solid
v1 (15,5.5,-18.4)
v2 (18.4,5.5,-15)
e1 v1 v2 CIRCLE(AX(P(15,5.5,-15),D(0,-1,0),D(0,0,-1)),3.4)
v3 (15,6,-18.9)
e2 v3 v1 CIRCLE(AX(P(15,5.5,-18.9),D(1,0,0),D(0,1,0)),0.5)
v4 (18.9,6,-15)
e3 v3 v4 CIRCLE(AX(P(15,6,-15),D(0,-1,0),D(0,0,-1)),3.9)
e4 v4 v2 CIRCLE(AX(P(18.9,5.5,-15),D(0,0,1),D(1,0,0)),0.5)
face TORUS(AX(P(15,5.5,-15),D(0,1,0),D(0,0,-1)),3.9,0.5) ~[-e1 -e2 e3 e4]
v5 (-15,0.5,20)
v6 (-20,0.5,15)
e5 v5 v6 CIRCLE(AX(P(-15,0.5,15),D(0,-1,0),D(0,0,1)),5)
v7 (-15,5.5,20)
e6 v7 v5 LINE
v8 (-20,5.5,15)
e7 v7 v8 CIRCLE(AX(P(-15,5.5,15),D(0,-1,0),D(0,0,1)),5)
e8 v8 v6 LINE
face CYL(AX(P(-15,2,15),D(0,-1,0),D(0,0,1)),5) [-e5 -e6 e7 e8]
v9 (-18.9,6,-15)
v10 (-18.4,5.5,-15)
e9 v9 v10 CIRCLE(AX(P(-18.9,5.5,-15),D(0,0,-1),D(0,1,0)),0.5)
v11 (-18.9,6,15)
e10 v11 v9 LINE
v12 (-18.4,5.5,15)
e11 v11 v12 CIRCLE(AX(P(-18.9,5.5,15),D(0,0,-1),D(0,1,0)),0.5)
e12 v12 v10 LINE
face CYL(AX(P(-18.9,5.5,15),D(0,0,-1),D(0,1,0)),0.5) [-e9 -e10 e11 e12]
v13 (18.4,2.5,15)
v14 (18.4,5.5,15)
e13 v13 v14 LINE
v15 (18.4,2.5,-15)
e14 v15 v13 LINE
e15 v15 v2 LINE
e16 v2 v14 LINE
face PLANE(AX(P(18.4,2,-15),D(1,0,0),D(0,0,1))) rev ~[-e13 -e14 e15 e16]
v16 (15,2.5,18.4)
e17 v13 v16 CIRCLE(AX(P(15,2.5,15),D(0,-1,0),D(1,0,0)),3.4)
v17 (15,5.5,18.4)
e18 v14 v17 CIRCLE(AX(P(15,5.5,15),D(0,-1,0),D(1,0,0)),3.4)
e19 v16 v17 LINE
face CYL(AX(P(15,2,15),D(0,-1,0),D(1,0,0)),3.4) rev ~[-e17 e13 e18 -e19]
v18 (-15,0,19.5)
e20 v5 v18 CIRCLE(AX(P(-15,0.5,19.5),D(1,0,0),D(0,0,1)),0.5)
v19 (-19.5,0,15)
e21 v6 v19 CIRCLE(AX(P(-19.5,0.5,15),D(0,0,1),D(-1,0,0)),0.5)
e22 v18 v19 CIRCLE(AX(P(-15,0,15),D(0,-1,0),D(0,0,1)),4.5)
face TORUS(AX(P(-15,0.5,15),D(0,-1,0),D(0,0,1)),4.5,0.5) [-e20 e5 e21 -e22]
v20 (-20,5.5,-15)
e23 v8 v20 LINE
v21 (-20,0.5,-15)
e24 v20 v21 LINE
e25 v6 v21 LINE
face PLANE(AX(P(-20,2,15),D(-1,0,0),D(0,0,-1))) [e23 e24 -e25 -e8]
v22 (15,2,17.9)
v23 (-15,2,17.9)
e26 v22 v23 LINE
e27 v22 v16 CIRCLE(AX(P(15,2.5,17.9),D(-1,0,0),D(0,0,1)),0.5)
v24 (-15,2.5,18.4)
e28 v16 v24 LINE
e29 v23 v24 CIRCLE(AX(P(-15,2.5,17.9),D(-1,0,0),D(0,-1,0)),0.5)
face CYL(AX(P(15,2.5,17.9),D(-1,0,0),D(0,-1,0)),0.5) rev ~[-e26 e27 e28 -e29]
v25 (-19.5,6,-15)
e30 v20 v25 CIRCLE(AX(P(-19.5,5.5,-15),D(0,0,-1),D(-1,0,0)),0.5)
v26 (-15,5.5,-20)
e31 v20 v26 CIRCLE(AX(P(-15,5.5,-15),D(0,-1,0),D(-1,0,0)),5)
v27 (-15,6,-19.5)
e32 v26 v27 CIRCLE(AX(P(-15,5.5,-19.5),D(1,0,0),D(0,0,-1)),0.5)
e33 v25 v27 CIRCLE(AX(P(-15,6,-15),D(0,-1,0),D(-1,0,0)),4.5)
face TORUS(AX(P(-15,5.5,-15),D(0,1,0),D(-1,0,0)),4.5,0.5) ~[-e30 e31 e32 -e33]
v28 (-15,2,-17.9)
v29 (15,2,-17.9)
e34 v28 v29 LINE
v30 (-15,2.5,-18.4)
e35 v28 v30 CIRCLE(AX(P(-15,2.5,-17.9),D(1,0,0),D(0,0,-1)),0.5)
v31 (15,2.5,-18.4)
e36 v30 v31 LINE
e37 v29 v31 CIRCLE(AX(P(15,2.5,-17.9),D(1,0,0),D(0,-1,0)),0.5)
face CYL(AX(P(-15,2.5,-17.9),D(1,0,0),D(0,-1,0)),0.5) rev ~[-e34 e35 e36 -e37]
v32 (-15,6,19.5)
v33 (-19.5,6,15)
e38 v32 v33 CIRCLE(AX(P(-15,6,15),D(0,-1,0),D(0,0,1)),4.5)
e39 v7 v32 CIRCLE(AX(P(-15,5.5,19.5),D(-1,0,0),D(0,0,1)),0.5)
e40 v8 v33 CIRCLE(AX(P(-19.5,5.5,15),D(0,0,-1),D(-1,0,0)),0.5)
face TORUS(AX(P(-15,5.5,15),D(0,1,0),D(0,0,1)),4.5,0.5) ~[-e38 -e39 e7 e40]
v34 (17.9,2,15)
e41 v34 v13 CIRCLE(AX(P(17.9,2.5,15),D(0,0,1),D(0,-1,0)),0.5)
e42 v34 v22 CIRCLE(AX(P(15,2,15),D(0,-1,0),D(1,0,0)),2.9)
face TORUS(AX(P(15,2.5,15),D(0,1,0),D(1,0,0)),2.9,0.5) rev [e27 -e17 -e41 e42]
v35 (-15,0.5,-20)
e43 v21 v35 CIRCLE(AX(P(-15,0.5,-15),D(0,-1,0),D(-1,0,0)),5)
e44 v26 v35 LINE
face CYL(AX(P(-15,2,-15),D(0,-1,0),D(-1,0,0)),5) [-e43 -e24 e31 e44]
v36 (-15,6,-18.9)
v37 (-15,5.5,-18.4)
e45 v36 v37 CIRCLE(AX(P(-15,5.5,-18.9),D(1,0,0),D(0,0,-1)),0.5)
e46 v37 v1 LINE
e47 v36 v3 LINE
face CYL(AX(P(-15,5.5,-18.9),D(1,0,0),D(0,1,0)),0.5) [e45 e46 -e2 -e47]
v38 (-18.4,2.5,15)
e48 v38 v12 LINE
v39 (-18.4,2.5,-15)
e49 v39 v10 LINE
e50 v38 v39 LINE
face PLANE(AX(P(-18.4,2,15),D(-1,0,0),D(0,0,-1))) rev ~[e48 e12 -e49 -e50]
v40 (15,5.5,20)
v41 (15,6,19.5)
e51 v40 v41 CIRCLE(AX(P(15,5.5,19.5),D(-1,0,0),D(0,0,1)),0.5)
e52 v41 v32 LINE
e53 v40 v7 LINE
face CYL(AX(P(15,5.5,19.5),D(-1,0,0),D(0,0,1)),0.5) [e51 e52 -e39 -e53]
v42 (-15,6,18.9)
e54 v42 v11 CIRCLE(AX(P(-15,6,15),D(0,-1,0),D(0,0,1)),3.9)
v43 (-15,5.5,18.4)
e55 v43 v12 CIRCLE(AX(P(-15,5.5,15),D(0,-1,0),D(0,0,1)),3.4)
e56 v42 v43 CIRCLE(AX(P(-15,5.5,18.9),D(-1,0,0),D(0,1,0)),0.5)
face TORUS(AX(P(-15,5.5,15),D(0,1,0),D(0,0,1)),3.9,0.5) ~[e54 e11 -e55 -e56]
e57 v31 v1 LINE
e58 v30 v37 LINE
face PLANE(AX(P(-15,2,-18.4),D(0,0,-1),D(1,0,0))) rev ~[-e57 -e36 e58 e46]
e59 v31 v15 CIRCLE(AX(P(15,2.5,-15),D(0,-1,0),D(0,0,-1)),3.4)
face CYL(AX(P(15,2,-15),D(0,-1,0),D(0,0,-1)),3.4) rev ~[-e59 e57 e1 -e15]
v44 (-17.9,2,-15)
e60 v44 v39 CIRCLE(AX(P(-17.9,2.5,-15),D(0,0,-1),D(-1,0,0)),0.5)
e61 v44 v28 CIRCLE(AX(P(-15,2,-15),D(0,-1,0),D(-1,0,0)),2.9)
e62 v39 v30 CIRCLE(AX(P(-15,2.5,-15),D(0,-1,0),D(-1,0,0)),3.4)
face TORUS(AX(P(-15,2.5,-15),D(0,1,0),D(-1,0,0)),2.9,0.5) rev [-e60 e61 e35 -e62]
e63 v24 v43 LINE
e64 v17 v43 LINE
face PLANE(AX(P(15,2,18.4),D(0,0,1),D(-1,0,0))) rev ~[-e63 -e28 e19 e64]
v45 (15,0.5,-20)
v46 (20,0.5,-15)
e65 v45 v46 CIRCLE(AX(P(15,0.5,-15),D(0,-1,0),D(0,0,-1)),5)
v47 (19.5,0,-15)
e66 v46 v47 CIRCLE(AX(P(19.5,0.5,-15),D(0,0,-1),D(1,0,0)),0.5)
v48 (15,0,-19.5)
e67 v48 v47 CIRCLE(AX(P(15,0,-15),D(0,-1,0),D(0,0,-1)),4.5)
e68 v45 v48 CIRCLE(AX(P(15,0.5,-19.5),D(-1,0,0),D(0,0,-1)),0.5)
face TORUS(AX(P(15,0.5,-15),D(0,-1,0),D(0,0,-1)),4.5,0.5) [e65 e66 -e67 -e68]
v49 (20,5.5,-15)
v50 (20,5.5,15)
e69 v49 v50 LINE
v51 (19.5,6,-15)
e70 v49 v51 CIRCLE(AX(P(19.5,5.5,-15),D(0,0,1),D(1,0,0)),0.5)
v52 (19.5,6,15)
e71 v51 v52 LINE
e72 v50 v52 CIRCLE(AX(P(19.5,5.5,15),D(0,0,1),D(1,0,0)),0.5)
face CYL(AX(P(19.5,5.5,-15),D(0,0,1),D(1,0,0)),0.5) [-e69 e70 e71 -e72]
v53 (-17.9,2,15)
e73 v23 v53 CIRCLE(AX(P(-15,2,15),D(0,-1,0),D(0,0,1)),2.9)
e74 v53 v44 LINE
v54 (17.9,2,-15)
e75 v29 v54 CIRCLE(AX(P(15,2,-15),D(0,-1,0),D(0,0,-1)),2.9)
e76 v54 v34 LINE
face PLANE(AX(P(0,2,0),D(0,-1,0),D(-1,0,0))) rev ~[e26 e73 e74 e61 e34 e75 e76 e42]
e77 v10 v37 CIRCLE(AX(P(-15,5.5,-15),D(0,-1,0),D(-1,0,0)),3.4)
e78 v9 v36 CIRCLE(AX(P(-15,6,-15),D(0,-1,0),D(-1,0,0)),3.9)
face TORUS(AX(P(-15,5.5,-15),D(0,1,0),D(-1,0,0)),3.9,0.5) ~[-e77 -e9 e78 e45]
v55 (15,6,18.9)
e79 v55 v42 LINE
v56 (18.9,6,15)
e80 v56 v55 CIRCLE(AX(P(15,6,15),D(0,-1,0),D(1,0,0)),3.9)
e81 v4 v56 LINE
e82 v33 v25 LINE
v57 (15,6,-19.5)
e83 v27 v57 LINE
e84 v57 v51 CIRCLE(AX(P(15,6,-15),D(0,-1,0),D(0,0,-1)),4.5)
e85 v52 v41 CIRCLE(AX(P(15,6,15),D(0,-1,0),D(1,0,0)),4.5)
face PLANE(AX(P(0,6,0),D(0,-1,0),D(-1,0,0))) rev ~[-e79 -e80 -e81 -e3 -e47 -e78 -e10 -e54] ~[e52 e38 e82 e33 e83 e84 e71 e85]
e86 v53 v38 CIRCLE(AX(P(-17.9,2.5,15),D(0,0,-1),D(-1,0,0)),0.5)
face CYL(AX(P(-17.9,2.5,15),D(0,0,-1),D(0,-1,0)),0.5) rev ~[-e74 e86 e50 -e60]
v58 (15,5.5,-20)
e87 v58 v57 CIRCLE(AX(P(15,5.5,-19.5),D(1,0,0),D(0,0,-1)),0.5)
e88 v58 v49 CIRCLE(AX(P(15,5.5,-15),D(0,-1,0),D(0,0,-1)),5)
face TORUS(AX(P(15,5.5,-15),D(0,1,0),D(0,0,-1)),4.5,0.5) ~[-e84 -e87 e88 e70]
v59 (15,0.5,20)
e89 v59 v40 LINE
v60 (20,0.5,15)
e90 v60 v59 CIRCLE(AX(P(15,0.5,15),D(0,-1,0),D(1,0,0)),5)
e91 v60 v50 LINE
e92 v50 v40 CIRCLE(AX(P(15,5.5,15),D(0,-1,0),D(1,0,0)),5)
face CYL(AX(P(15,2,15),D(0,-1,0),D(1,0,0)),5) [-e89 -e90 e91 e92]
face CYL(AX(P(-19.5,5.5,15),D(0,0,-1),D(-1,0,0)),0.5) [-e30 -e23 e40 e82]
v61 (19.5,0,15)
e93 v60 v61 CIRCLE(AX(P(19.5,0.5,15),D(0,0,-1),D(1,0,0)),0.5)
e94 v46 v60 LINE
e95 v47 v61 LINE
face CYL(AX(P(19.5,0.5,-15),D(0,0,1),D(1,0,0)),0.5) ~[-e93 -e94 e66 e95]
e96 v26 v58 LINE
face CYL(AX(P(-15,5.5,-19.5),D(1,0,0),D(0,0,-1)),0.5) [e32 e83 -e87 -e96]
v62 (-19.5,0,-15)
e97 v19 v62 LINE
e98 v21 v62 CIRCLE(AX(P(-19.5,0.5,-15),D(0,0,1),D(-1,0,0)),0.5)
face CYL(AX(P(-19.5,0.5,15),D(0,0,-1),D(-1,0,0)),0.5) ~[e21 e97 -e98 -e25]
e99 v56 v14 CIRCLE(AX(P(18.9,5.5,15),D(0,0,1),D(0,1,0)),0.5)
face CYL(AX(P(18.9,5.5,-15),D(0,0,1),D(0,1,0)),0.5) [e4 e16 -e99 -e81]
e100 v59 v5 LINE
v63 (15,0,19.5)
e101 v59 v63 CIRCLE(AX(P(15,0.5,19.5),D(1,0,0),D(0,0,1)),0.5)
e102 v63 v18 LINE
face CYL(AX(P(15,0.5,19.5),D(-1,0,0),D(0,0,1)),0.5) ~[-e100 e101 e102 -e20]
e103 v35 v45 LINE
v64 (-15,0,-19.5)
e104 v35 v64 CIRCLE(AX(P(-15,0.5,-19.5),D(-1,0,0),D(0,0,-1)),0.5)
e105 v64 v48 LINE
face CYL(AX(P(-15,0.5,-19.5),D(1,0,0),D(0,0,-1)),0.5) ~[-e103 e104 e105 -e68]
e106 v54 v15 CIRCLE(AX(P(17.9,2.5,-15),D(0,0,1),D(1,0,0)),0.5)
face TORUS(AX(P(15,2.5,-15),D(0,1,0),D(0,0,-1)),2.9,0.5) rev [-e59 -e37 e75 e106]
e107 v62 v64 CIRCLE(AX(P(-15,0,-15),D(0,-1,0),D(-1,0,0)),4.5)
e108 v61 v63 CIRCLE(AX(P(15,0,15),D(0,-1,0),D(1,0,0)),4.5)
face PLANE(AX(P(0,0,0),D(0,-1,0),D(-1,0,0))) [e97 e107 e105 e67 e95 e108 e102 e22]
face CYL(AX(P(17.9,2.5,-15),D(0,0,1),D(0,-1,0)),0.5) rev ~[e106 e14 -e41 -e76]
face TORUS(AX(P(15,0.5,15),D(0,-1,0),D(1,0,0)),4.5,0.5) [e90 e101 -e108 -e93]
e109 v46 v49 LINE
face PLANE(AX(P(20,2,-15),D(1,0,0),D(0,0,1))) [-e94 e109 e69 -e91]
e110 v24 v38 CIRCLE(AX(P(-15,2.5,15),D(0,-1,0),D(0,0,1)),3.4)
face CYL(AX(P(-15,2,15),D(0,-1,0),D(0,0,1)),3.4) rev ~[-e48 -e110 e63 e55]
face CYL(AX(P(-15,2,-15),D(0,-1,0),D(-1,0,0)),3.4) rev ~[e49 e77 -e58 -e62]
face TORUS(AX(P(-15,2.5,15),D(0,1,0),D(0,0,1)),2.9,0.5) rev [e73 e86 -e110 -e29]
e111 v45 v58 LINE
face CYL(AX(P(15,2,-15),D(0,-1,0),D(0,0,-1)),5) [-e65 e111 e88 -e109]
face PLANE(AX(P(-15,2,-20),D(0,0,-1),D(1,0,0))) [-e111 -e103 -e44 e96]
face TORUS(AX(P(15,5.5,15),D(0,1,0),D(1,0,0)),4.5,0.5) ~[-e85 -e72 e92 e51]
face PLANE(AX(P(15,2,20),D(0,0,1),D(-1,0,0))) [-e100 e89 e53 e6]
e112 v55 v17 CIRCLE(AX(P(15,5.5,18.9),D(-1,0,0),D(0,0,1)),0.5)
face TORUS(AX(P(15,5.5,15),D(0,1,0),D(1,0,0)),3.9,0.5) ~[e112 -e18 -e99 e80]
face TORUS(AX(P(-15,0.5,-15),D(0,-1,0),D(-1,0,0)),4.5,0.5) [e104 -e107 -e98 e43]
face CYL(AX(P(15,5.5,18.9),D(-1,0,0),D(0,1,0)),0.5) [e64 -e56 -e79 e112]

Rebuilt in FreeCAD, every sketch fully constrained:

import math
import FreeCAD as App
import Part
import Sketcher
from FreeCAD import Vector


def edges_at(feature, points):
    """Names of the edges that pass closest to the given points."""
    edges = feature.Shape.Edges
    near = lambda p: min(range(len(edges)), key=lambda i: edges[i].distToShape(Part.Vertex(*p))[0])
    return sorted({f"Edge{near(p) + 1}" for p in points})

doc = App.newDocument("Part")
body = doc.addObject("PartDesign::Body", "Body")

# Sketch on XZ plane
sketch1 = body.newObject("Sketcher::SketchObject", "Sketch")
sketch1.AttachmentSupport = (doc.getObject("XZ_Plane"), [""])
sketch1.MapMode = "FlatFace"
sketch1.addGeometry([
    Part.LineSegment(Vector(15, -20, 0), Vector(-15, -20, 0)),  # 0
    Part.ArcOfCircle(Part.Circle(Vector(-15, -15, 0), Vector(0, 0, 1), 5), math.radians(180), math.radians(270)),  # 1
    Part.LineSegment(Vector(-20, -15, 0), Vector(-20, 15, 0)),  # 2
    Part.ArcOfCircle(Part.Circle(Vector(-15, 15, 0), Vector(0, 0, 1), 5), math.radians(90), math.radians(180)),  # 3
    Part.LineSegment(Vector(-15, 20, 0), Vector(15, 20, 0)),  # 4
    Part.ArcOfCircle(Part.Circle(Vector(15, 15, 0), Vector(0, 0, 1), 5), math.radians(0), math.radians(90)),  # 5
    Part.LineSegment(Vector(20, 15, 0), Vector(20, -15, 0)),  # 6
    Part.ArcOfCircle(Part.Circle(Vector(15, -15, 0), Vector(0, 0, 1), 5), math.radians(-90), math.radians(0)),  # 7
], False)
sketch1.addConstraint([
    Sketcher.Constraint("Tangent", 0, 2, 1, 2),
    Sketcher.Constraint("Tangent", 1, 1, 2, 1),
    Sketcher.Constraint("Tangent", 2, 2, 3, 2),
    Sketcher.Constraint("Tangent", 3, 1, 4, 1),
    Sketcher.Constraint("Tangent", 4, 2, 5, 2),
    Sketcher.Constraint("Tangent", 5, 1, 6, 1),
    Sketcher.Constraint("Tangent", 6, 2, 7, 2),
    Sketcher.Constraint("Tangent", 7, 1, 0, 1),
    Sketcher.Constraint("Horizontal", 0),
    Sketcher.Constraint("Vertical", 2),
    Sketcher.Constraint("Horizontal", 4),
    Sketcher.Constraint("Vertical", 6),
    Sketcher.Constraint("Equal", 1, 3),
    Sketcher.Constraint("Equal", 3, 5),
    Sketcher.Constraint("Equal", 5, 7),
    Sketcher.Constraint("Symmetric", 1, 3, 5, 3, -1, 1),
    Sketcher.Constraint("Equal", 4, 2),
    Sketcher.Constraint("Radius", 1, 5.0),
    Sketcher.Constraint("DistanceX", 0, 2, 0, 1, 30.0),
])
pad1 = body.newObject("PartDesign::Pad", "Pad")
pad1.Profile = sketch1
pad1.Length = 2
pad1.Reversed = True

# Sketch on XZ plane
sketch2 = body.newObject("Sketcher::SketchObject", "Sketch001")
sketch2.AttachmentSupport = (doc.getObject("XZ_Plane"), [""])
sketch2.MapMode = "FlatFace"
sketch2.AttachmentOffset = App.Placement(Vector(0, 0, -2), App.Rotation())
sketch2.addGeometry([
    Part.LineSegment(Vector(-15, 20, 0), Vector(15, 20, 0)),  # 0
    Part.ArcOfCircle(Part.Circle(Vector(15, 15, 0), Vector(0, 0, 1), 5), math.radians(0), math.radians(90)),  # 1
    Part.LineSegment(Vector(20, 15, 0), Vector(20, -15, 0)),  # 2
    Part.ArcOfCircle(Part.Circle(Vector(15, -15, 0), Vector(0, 0, 1), 5), math.radians(-90), math.radians(0)),  # 3
    Part.LineSegment(Vector(15, -20, 0), Vector(-15, -20, 0)),  # 4
    Part.ArcOfCircle(Part.Circle(Vector(-15, -15, 0), Vector(0, 0, 1), 5), math.radians(180), math.radians(270)),  # 5
    Part.LineSegment(Vector(-20, -15, 0), Vector(-20, 15, 0)),  # 6
    Part.ArcOfCircle(Part.Circle(Vector(-15, 15, 0), Vector(0, 0, 1), 5), math.radians(90), math.radians(180)),  # 7
    Part.LineSegment(Vector(15, 18.4, 0), Vector(-15, 18.4, 0)),  # 8
    Part.ArcOfCircle(Part.Circle(Vector(-15, 15, 0), Vector(0, 0, 1), 3.4), math.radians(90), math.radians(180)),  # 9
    Part.LineSegment(Vector(-18.4, 15, 0), Vector(-18.4, -15, 0)),  # 10
    Part.ArcOfCircle(Part.Circle(Vector(-15, -15, 0), Vector(0, 0, 1), 3.4), math.radians(180), math.radians(270)),  # 11
    Part.LineSegment(Vector(-15, -18.4, 0), Vector(15, -18.4, 0)),  # 12
    Part.ArcOfCircle(Part.Circle(Vector(15, -15, 0), Vector(0, 0, 1), 3.4), math.radians(-90), math.radians(0)),  # 13
    Part.LineSegment(Vector(18.4, -15, 0), Vector(18.4, 15, 0)),  # 14
    Part.ArcOfCircle(Part.Circle(Vector(15, 15, 0), Vector(0, 0, 1), 3.4), math.radians(0), math.radians(90)),  # 15
], False)
sketch2.addConstraint([
    Sketcher.Constraint("Tangent", 0, 2, 1, 2),
    Sketcher.Constraint("Tangent", 1, 1, 2, 1),
    Sketcher.Constraint("Tangent", 2, 2, 3, 2),
    Sketcher.Constraint("Tangent", 3, 1, 4, 1),
    Sketcher.Constraint("Tangent", 4, 2, 5, 2),
    Sketcher.Constraint("Tangent", 5, 1, 6, 1),
    Sketcher.Constraint("Tangent", 6, 2, 7, 2),
    Sketcher.Constraint("Tangent", 7, 1, 0, 1),
    Sketcher.Constraint("Tangent", 8, 2, 9, 1),
    Sketcher.Constraint("Tangent", 9, 2, 10, 1),
    Sketcher.Constraint("Tangent", 10, 2, 11, 1),
    Sketcher.Constraint("Tangent", 11, 2, 12, 1),
    Sketcher.Constraint("Tangent", 12, 2, 13, 1),
    Sketcher.Constraint("Tangent", 13, 2, 14, 1),
    Sketcher.Constraint("Tangent", 14, 2, 15, 1),
    Sketcher.Constraint("Tangent", 15, 2, 8, 1),
    Sketcher.Constraint("Horizontal", 0),
    Sketcher.Constraint("Vertical", 2),
    Sketcher.Constraint("Horizontal", 4),
    Sketcher.Constraint("Vertical", 6),
    Sketcher.Constraint("Horizontal", 8),
    Sketcher.Constraint("Vertical", 10),
    Sketcher.Constraint("Horizontal", 12),
    Sketcher.Constraint("Vertical", 14),
    Sketcher.Constraint("Coincident", 9, 3, 7, 3),
    Sketcher.Constraint("Coincident", 11, 3, 5, 3),
    Sketcher.Constraint("Coincident", 13, 3, 3, 3),
    Sketcher.Constraint("Equal", 1, 3),
    Sketcher.Constraint("Equal", 3, 5),
    Sketcher.Constraint("Equal", 5, 7),
    Sketcher.Constraint("Equal", 13, 15),
    Sketcher.Constraint("Symmetric", 1, 3, 5, 3, -1, 1),
    Sketcher.Constraint("Equal", 12, 2),
    Sketcher.Constraint("Radius", 1, 5.0),
    Sketcher.Constraint("Radius", 9, 3.4),
    Sketcher.Constraint("DistanceX", 0, 1, 0, 2, 30.0),
])
pad2 = body.newObject("PartDesign::Pad", "Pad001")
pad2.Profile = sketch2
pad2.Length = 4
pad2.Reversed = True
doc.recompute()

fillet = body.newObject("PartDesign::Fillet", "Fillet")
fillet.Base = (pad2, edges_at(pad2, [
    (0, 0, 20),
    (-18.536, 0, 18.536),
    (-18.536, 6, -18.536),
    (-18.536, 6, 18.536),
    (18.536, 6, 18.536),
    (18.536, 6, -18.536),
    (-18.4, 6, 0),
    (0, 6, -18.4),
    (18.4, 6, 0),
    (0, 6, 18.4),
    (-17.404, 2, -17.404),
    (-17.404, 2, 17.404),
    (17.404, 2, 17.404),
    (17.404, 2, -17.404),
    (-20, 6, 0),
    (0, 6, 20),
    (20, 6, 0),
    (0, 6, -20),
    (-17.404, 6, -17.404),
    (-18.4, 2, 0),
    (-17.404, 6, 17.404),
    (0, 2, 18.4),
    (17.404, 6, 17.404),
    (18.4, 2, 0),
    (17.404, 6, -17.404),
    (0, 2, -18.4),
    (-20, 0, 0),
    (-18.536, 0, -18.536),
    (0, 0, -20),
    (18.536, 0, -18.536),
    (20, 0, 0),
    (18.536, 0, 18.536),
]))
fillet.Radius = 0.5

doc.recompute()
